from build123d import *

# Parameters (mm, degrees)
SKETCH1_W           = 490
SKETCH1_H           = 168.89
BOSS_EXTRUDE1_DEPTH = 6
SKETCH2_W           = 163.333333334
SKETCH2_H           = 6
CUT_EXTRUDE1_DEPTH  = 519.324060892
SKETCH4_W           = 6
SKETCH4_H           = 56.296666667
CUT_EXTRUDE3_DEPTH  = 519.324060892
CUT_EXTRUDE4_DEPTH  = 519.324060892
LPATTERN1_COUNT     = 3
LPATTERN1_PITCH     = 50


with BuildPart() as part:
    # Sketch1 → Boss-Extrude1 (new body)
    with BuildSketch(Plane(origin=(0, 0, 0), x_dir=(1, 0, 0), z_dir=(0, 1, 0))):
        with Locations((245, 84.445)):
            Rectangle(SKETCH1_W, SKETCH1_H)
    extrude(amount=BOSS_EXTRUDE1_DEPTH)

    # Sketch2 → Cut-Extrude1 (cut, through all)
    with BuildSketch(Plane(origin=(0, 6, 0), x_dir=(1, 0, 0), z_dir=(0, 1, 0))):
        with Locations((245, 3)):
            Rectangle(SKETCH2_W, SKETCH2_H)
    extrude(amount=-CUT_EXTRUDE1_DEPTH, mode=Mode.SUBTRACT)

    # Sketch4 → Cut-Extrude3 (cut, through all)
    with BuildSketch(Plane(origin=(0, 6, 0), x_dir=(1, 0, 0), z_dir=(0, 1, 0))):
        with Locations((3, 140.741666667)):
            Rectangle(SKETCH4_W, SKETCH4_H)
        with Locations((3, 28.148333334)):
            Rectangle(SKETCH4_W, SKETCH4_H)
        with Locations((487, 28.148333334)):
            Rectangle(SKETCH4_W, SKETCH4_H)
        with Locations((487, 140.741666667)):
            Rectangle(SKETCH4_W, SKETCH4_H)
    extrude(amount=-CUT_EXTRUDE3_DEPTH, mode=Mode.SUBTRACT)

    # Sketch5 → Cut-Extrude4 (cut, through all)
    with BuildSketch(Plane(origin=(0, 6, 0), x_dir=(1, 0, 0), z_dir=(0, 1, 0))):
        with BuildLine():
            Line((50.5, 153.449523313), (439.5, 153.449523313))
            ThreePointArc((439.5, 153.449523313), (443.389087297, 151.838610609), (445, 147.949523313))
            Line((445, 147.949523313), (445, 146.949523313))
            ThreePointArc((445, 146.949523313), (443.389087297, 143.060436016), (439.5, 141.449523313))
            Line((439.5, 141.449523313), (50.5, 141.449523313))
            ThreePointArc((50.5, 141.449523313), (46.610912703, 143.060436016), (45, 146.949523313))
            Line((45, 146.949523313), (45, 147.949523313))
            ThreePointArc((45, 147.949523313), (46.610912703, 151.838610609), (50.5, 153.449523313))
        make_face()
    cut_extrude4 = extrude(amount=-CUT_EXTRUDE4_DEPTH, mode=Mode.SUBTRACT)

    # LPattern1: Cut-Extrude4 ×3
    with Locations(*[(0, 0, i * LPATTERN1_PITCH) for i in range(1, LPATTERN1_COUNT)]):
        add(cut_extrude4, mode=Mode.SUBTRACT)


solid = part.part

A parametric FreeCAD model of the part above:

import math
import FreeCAD as App
import Part
import Sketcher

V = App.Vector
Q = App.Units.Quantity

doc = App.newDocument("Part")
params = doc.addObject("Spreadsheet::Sheet", "Params")
for row, (alias, value) in enumerate([
    ("sketch1_width", "490 mm"),
    ("sketch1_height", "168.89 mm"),
    ("pad1_length", "6 mm"),
    ("sketch2_height", "6 mm"),
    ("sketch3_width", "6 mm"),
    ("sketch4_radius", "5.5 mm"),
    ("sketch4_width", "389 mm"),
    ("sketch4_height", "1 mm"),
    ("linearpattern_pitch", "50 mm"),
], start=1):
    params.set(f"A{row}", alias)
    params.set(f"B{row}", "=" + value)
    params.setAlias(f"B{row}", alias)

body = doc.addObject("PartDesign::Body", "Body")

# Sketch on XZ plane
sketch1 = doc.addObject("Sketcher::SketchObject", "Sketch")
body.addObject(sketch1)
sketch1.AttachmentSupport = (doc.XZ_Plane, [""])
sketch1.MapMode = "FlatFace"
sketch1.addGeometry([
    Part.LineSegment(V(0, -168.89, 0), V(0, 0, 0)),
    Part.LineSegment(V(0, 0, 0), V(490, 0, 0)),
    Part.LineSegment(V(490, 0, 0), V(490, -168.89, 0)),
    Part.LineSegment(V(490, -168.89, 0), V(0, -168.89, 0)),
], False)
sketch1.addConstraint([
    Sketcher.Constraint("Coincident", 0, 2, 1, 1),
    Sketcher.Constraint("Coincident", 1, 2, 2, 1),
    Sketcher.Constraint("Coincident", 2, 2, 3, 1),
    Sketcher.Constraint("Coincident", 3, 2, 0, 1),
    Sketcher.Constraint("Vertical", 0),
    Sketcher.Constraint("Horizontal", 1),
    Sketcher.Constraint("Vertical", 2),
    Sketcher.Constraint("Horizontal", 3),
    Sketcher.Constraint("Coincident", 0, 2, -1, 1),
    Sketcher.Constraint("DistanceX", 1, 1, 1, 2, Q("490 mm")),
    Sketcher.Constraint("DistanceY", 0, 1, 0, 2, Q("168.89 mm")),
])
sketch1.setExpression("Constraints[9]", "Params.sketch1_width")
sketch1.setExpression("Constraints[10]", "Params.sketch1_height")
pad1 = doc.addObject("PartDesign::Pad", "Pad")
body.addObject(pad1)
pad1.Profile = sketch1
pad1.setExpression("Length", "Params.pad1_length")
pad1.Reversed = True

# Sketch on XZ plane
sketch2 = doc.addObject("Sketcher::SketchObject", "Sketch001")
body.addObject(sketch2)
sketch2.AttachmentSupport = (doc.XZ_Plane, [""])
sketch2.MapMode = "FlatFace"
sketch2.AttachmentOffset = App.Placement(V(0, 0, -6), App.Rotation())
sketch2.addGeometry([
    Part.LineSegment(V(163.333333, -6, 0), V(163.333333, 0, 0)),
    Part.LineSegment(V(163.333333, 0, 0), V(326.666667, 0, 0)),
    Part.LineSegment(V(326.666667, 0, 0), V(326.666667, -6, 0)),
    Part.LineSegment(V(326.666667, -6, 0), V(163.333333, -6, 0)),
], False)
sketch2.addConstraint([
    Sketcher.Constraint("Coincident", 0, 2, 1, 1),
    Sketcher.Constraint("Coincident", 1, 2, 2, 1),
    Sketcher.Constraint("Coincident", 2, 2, 3, 1),
    Sketcher.Constraint("Coincident", 3, 2, 0, 1),
    Sketcher.Constraint("Vertical", 0),
    Sketcher.Constraint("Horizontal", 1),
    Sketcher.Constraint("Vertical", 2),
    Sketcher.Constraint("Horizontal", 3),
    Sketcher.Constraint("PointOnObject", 0, 2, -1),
    Sketcher.Constraint("DistanceY", 0, 1, 0, 2, Q("6 mm")),
    Sketcher.Constraint("DistanceX", 1, 1, 1, 2, Q("163.333333 mm")),
    Sketcher.Constraint("DistanceX", -1, 1, 0, 2, Q("163.333333 mm")),
])
sketch2.setExpression("Constraints[9]", "Params.sketch2_height")
pocket1 = doc.addObject("PartDesign::Pocket", "Pocket")
body.addObject(pocket1)
pocket1.Profile = sketch2
pocket1.Type = "ThroughAll"
pocket1.Reversed = True

# Sketch on XZ plane
sketch3 = doc.addObject("Sketcher::SketchObject", "Sketch002")
body.addObject(sketch3)
sketch3.AttachmentSupport = (doc.XZ_Plane, [""])
sketch3.MapMode = "FlatFace"
sketch3.AttachmentOffset = App.Placement(V(0, 0, -6), App.Rotation())
sketch3.addGeometry([
    Part.LineSegment(V(0, -168.89, 0), V(0, -112.593333, 0)),  # 0
    Part.LineSegment(V(0, -112.593333, 0), V(6, -112.593333, 0)),  # 1
    Part.LineSegment(V(6, -112.593333, 0), V(6, -168.89, 0)),  # 2
    Part.LineSegment(V(6, -168.89, 0), V(0, -168.89, 0)),  # 3
    Part.LineSegment(V(0, -56.296667, 0), V(0, 0, 0)),  # 4
    Part.LineSegment(V(0, 0, 0), V(6, 0, 0)),  # 5
    Part.LineSegment(V(6, 0, 0), V(6, -56.296667, 0)),  # 6
    Part.LineSegment(V(6, -56.296667, 0), V(0, -56.296667, 0)),  # 7
    Part.LineSegment(V(484, -56.296667, 0), V(484, 0, 0)),  # 8
    Part.LineSegment(V(484, 0, 0), V(490, 0, 0)),  # 9
    Part.LineSegment(V(490, 0, 0), V(490, -56.296667, 0)),  # 10
    Part.LineSegment(V(490, -56.296667, 0), V(484, -56.296667, 0)),  # 11
    Part.LineSegment(V(484, -168.89, 0), V(484, -112.593333, 0)),  # 12
    Part.LineSegment(V(484, -112.593333, 0), V(490, -112.593333, 0)),  # 13
    Part.LineSegment(V(490, -112.593333, 0), V(490, -168.89, 0)),  # 14
    Part.LineSegment(V(490, -168.89, 0), V(484, -168.89, 0)),  # 15
], False)
sketch3.addConstraint([
    Sketcher.Constraint("Coincident", 0, 2, 1, 1),
    Sketcher.Constraint("Coincident", 1, 2, 2, 1),
    Sketcher.Constraint("Coincident", 2, 2, 3, 1),
    Sketcher.Constraint("Coincident", 3, 2, 0, 1),
    Sketcher.Constraint("Coincident", 4, 2, 5, 1),
    Sketcher.Constraint("Coincident", 5, 2, 6, 1),
    Sketcher.Constraint("Coincident", 6, 2, 7, 1),
    Sketcher.Constraint("Coincident", 7, 2, 4, 1),
    Sketcher.Constraint("Coincident", 8, 2, 9, 1),
    Sketcher.Constraint("Coincident", 9, 2, 10, 1),
    Sketcher.Constraint("Coincident", 10, 2, 11, 1),
    Sketcher.Constraint("Coincident", 11, 2, 8, 1),
    Sketcher.Constraint("Coincident", 12, 2, 13, 1),
    Sketcher.Constraint("Coincident", 13, 2, 14, 1),
    Sketcher.Constraint("Coincident", 14, 2, 15, 1),
    Sketcher.Constraint("Coincident", 15, 2, 12, 1),
    Sketcher.Constraint("Vertical", 0),
    Sketcher.Constraint("Horizontal", 1),
    Sketcher.Constraint("Vertical", 2),
    Sketcher.Constraint("Horizontal", 3),
    Sketcher.Constraint("Vertical", 4),
    Sketcher.Constraint("Horizontal", 5),
    Sketcher.Constraint("Vertical", 6),
    Sketcher.Constraint("Horizontal", 7),
    Sketcher.Constraint("Vertical", 8),
    Sketcher.Constraint("Horizontal", 9),
    Sketcher.Constraint("Vertical", 10),
    Sketcher.Constraint("Horizontal", 11),
    Sketcher.Constraint("Vertical", 12),
    Sketcher.Constraint("Horizontal", 13),
    Sketcher.Constraint("Vertical", 14),
    Sketcher.Constraint("Horizontal", 15),
    Sketcher.Constraint("Coincident", 4, 2, -1, 1),
    Sketcher.Constraint("PointOnObject", 0, 2, -2),
    Sketcher.Constraint("PointOnObject", 8, 2, -1),
    Sketcher.Constraint("Horizontal", 7, 2, 10, 2),
    Sketcher.Constraint("Horizontal", 1, 2, 12, 2),
    Sketcher.Constraint("Horizontal", 3, 2, 14, 2),
    Sketcher.Constraint("Vertical", 2, 2, 5, 2),
    Sketcher.Constraint("Vertical", 11, 2, 12, 2),
    Sketcher.Constraint("Vertical", 10, 2, 13, 2),
    Sketcher.Constraint("Equal", 7, 9),
    Sketcher.Constraint("Equal", 2, 4),
    Sketcher.Constraint("DistanceX", 1, 1, 1, 2, Q("6 mm")),
    Sketcher.Constraint("DistanceX", -1, 1, 8, 2, Q("484 mm")),
    Sketcher.Constraint("DistanceY", 2, 2, -1, 1, Q("168.89 mm")),
    Sketcher.Constraint("DistanceY", 0, 1, 0, 2, Q("56.296667 mm")),
])
sketch3.setExpression("Constraints[43]", "Params.sketch3_width")
pocket2 = doc.addObject("PartDesign::Pocket", "Pocket001")
body.addObject(pocket2)
pocket2.Profile = sketch3
pocket2.Type = "ThroughAll"
pocket2.Reversed = True

# Sketch on XZ plane
sketch4 = doc.addObject("Sketcher::SketchObject", "Sketch003")
body.addObject(sketch4)
sketch4.AttachmentSupport = (doc.XZ_Plane, [""])
sketch4.MapMode = "FlatFace"
sketch4.AttachmentOffset = App.Placement(V(0, 0, -6), App.Rotation())
sketch4.addGeometry([
    Part.LineSegment(V(439.5, -153.449523, 0), V(50.5, -153.449523, 0)),  # 0
    Part.ArcOfCircle(Part.Circle(V(50.5, -147.949523, 0), V(0, 0, 1), 5.5), math.radians(180), math.radians(270)),  # 1
    Part.LineSegment(V(45, -147.949523, 0), V(45, -146.949523, 0)),  # 2
    Part.ArcOfCircle(Part.Circle(V(50.5, -146.949523, 0), V(0, 0, 1), 5.5), math.radians(90), math.radians(180)),  # 3
    Part.LineSegment(V(50.5, -141.449523, 0), V(439.5, -141.449523, 0)),  # 4
    Part.ArcOfCircle(Part.Circle(V(439.5, -146.949523, 0), V(0, 0, 1), 5.5), math.radians(0), math.radians(90)),  # 5
    Part.LineSegment(V(445, -146.949523, 0), V(445, -147.949523, 0)),  # 6
    Part.ArcOfCircle(Part.Circle(V(439.5, -147.949523, 0), V(0, 0, 1), 5.5), math.radians(-90), math.radians(0)),  # 7
], False)
sketch4.addConstraint([
    Sketcher.Constraint("Tangent", 0, 2, 1, 2),
    Sketcher.Constraint("Tangent", 1, 1, 2, 1),
    Sketcher.Constraint("Tangent", 2, 2, 3, 2),
    Sketcher.Constraint("Tangent", 3, 1, 4, 1),
    Sketcher.Constraint("Tangent", 4, 2, 5, 2),
    Sketcher.Constraint("Tangent", 5, 1, 6, 1),
    Sketcher.Constraint("Tangent", 6, 2, 7, 2),
    Sketcher.Constraint("Tangent", 7, 1, 0, 1),
    Sketcher.Constraint("Horizontal", 0),
    Sketcher.Constraint("Vertical", 2),
    Sketcher.Constraint("Horizontal", 4),
    Sketcher.Constraint("Vertical", 6),
    Sketcher.Constraint("Equal", 1, 3),
    Sketcher.Constraint("Equal", 3, 5),
    Sketcher.Constraint("Equal", 5, 7),
    Sketcher.Constraint("Radius", 1, Q("5.5 mm")),
    Sketcher.Constraint("DistanceX", 0, 2, 0, 1, Q("389 mm")),
    Sketcher.Constraint("DistanceY", 2, 1, 2, 2, Q("1 mm")),
    Sketcher.Constraint("DistanceX", -1, 1, 1, 1, Q("45 mm")),
    Sketcher.Constraint("DistanceY", 1, 3, -1, 1, Q("147.949523 mm")),
])
sketch4.setExpression("Constraints[15]", "Params.sketch4_radius")
sketch4.setExpression("Constraints[16]", "Params.sketch4_width")
sketch4.setExpression("Constraints[17]", "Params.sketch4_height")
pocket3 = doc.addObject("PartDesign::Pocket", "Pocket002")
body.addObject(pocket3)
pocket3.Profile = sketch4
pocket3.Type = "ThroughAll"
pocket3.Reversed = True
doc.recompute()

linearpattern = doc.addObject("PartDesign::LinearPattern", "LinearPattern")
body.addObject(linearpattern)
linearpattern.Originals = [pocket3]
linearpattern.Direction = (doc.Z_Axis, [""])
linearpattern.Mode = "offset"
linearpattern.setExpression("Offset", "Params.linearpattern_pitch")
linearpattern.Occurrences = 3
body.Tip = linearpattern

doc.recompute()
